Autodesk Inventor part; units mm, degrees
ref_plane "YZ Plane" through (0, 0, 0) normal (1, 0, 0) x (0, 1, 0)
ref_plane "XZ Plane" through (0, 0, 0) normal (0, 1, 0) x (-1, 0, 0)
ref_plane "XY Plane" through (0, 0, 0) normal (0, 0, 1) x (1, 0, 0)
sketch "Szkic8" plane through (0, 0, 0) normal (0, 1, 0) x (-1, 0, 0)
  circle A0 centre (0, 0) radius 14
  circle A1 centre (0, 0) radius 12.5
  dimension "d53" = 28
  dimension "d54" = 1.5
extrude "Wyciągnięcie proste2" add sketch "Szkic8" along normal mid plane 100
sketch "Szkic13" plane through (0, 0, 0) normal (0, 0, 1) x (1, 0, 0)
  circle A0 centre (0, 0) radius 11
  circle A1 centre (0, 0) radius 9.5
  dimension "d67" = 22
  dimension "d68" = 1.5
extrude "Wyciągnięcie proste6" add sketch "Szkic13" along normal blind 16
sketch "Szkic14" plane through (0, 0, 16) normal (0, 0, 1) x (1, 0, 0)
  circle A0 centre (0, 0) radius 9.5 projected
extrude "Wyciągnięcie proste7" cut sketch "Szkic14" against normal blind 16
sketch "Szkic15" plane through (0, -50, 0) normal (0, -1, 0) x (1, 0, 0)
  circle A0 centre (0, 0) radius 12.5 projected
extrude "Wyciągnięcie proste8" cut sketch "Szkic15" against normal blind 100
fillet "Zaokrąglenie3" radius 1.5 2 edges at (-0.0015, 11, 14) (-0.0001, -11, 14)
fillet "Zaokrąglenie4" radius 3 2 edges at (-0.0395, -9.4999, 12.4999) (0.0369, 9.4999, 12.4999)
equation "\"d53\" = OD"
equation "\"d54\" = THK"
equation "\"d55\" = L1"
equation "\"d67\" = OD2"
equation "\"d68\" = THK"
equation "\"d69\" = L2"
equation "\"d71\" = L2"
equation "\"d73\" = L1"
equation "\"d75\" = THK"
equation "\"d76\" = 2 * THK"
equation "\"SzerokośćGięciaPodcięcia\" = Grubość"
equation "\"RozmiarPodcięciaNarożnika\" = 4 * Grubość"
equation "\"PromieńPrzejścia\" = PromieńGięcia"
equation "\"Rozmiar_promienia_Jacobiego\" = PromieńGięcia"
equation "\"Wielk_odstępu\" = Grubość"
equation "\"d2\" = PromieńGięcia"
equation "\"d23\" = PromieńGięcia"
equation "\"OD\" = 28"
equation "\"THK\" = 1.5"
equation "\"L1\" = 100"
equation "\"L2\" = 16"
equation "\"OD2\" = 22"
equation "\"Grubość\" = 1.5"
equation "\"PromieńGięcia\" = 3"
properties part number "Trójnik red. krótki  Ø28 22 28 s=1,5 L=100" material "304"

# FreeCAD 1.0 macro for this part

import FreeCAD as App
import Part
import Sketcher


def edges_at(feature, points):
    """Names of the edges that pass closest to the given points."""
    edges = feature.Shape.Edges
    near = lambda p: min(range(len(edges)), key=lambda i: edges[i].distToShape(Part.Vertex(*p))[0])
    return sorted({f"Edge{near(p) + 1}" for p in points})

doc = App.newDocument("Part")
body = doc.addObject("PartDesign::Body", "Body")

# Sketch on XZ plane
sketch1 = body.newObject("Sketcher::SketchObject", "Sketch")
sketch1.AttachmentSupport = (doc.getObject("XZ_Plane"), [""])
sketch1.MapMode = "FlatFace"
sketch1.addGeometry([
    Part.Circle(App.Vector(0, 0, 0), App.Vector(0, 0, 1), 14),
    Part.Circle(App.Vector(0, 0, 0), App.Vector(0, 0, 1), 12),
], False)
sketch1.addConstraint([
    Sketcher.Constraint("Coincident", 0, 3, -1, 1),
    Sketcher.Constraint("Coincident", 1, 3, -1, 1),
    Sketcher.Constraint("Diameter", 0, 28.0),
    Sketcher.Constraint("Diameter", 1, 25.0),
])
pad1 = body.newObject("PartDesign::Pad", "Pad")
pad1.Profile = sketch1
pad1.Length = 100
pad1.Midplane = True

# Sketch on XY plane
sketch2 = body.newObject("Sketcher::SketchObject", "Sketch001")
sketch2.AttachmentSupport = (doc.getObject("XY_Plane"), [""])
sketch2.MapMode = "FlatFace"
sketch2.addGeometry([
    Part.Circle(App.Vector(0, 0, 0), App.Vector(0, 0, 1), 11),
    Part.Circle(App.Vector(0, 0, 0), App.Vector(0, 0, 1), 10),
], False)
sketch2.addConstraint([
    Sketcher.Constraint("Coincident", 0, 3, -1, 1),
    Sketcher.Constraint("Coincident", 1, 3, -1, 1),
    Sketcher.Constraint("Diameter", 0, 22.0),
    Sketcher.Constraint("Diameter", 1, 19.0),
])
pad2 = body.newObject("PartDesign::Pad", "Pad001")
pad2.Profile = sketch2
pad2.Length = 16

# Sketch on XY plane
sketch3 = body.newObject("Sketcher::SketchObject", "Sketch002")
sketch3.AttachmentSupport = (doc.getObject("XY_Plane"), [""])
sketch3.MapMode = "FlatFace"
sketch3.AttachmentOffset = App.Placement(App.Vector(0, 0, 16), App.Rotation())
sketch3.addGeometry(Part.Circle(App.Vector(0, 0, 0), App.Vector(0, 0, 1), 10), False)
sketch3.addConstraint([
    Sketcher.Constraint("Coincident", 0, 3, -1, 1),
    Sketcher.Constraint("Diameter", 0, 19.0),
])
pocket1 = body.newObject("PartDesign::Pocket", "Pocket")
pocket1.Profile = sketch3
pocket1.Length = 16

# Sketch on XZ plane
sketch4 = body.newObject("Sketcher::SketchObject", "Sketch003")
sketch4.AttachmentSupport = (doc.getObject("XZ_Plane"), [""])
sketch4.MapMode = "FlatFace"
sketch4.AttachmentOffset = App.Placement(App.Vector(0, 0, 50), App.Rotation())
sketch4.addGeometry(Part.Circle(App.Vector(0, 0, 0), App.Vector(0, 0, 1), 12), False)
sketch4.addConstraint([
    Sketcher.Constraint("Coincident", 0, 3, -1, 1),
    Sketcher.Constraint("Diameter", 0, 25.0),
])
pocket2 = body.newObject("PartDesign::Pocket", "Pocket001")
pocket2.Profile = sketch4
pocket2.Length = 100
doc.recompute()

fillet = body.newObject("PartDesign::Fillet", "Fillet")
fillet.Base = (pocket2, edges_at(pocket2, [(-0.002, 11, 14), (0, -11, 14)]))
fillet.Radius = 1.5
doc.recompute()

fillet2 = body.newObject("PartDesign::Fillet", "Fillet001")
fillet2.Base = (fillet, edges_at(fillet, [(-0.04, -9.5, 12.5), (0.037, 9.5, 12.5)]))
fillet2.Radius = 3

doc.recompute()
